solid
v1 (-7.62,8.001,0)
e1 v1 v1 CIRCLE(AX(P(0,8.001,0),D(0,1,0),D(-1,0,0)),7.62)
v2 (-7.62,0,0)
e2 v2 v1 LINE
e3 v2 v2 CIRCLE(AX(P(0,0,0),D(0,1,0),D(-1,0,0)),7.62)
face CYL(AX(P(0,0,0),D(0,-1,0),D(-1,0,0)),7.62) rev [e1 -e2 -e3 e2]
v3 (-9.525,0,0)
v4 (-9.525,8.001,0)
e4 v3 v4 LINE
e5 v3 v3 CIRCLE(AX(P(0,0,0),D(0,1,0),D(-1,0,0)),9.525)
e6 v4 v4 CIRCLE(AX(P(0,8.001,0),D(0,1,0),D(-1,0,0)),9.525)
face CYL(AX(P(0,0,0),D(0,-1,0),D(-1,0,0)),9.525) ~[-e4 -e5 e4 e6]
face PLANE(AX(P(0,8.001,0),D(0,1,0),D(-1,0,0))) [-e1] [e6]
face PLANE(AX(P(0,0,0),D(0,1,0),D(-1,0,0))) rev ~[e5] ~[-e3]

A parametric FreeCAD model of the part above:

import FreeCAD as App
import Part
import Sketcher
Q = App.Units.Quantity

doc = App.newDocument("Part")
body = doc.addObject("PartDesign::Body", "Body")

# Sketch on XZ plane
sketch1 = body.newObject("Sketcher::SketchObject", "Sketch")
sketch1.AttachmentSupport = (doc.getObject("XZ_Plane"), [""])
sketch1.MapMode = "FlatFace"
sketch1.addGeometry([
    Part.Circle(App.Vector(0, 0, 0), App.Vector(0, 0, 1), 10),
    Part.Circle(App.Vector(0, 0, 0), App.Vector(0, 0, 1), 8),
], False)
sketch1.addConstraint([
    Sketcher.Constraint("Coincident", 0, 3, -1, 1),
    Sketcher.Constraint("Coincident", 1, 3, -1, 1),
    Sketcher.Constraint("Diameter", 1, Q("0.6 in")),
    Sketcher.Constraint("Diameter", 0, Q("0.75 in")),
])
pad1 = body.newObject("PartDesign::Pad", "Pad")
pad1.Profile = sketch1
pad1.Length = Q("0.315 in")
pad1.Reversed = True

doc.recompute()
